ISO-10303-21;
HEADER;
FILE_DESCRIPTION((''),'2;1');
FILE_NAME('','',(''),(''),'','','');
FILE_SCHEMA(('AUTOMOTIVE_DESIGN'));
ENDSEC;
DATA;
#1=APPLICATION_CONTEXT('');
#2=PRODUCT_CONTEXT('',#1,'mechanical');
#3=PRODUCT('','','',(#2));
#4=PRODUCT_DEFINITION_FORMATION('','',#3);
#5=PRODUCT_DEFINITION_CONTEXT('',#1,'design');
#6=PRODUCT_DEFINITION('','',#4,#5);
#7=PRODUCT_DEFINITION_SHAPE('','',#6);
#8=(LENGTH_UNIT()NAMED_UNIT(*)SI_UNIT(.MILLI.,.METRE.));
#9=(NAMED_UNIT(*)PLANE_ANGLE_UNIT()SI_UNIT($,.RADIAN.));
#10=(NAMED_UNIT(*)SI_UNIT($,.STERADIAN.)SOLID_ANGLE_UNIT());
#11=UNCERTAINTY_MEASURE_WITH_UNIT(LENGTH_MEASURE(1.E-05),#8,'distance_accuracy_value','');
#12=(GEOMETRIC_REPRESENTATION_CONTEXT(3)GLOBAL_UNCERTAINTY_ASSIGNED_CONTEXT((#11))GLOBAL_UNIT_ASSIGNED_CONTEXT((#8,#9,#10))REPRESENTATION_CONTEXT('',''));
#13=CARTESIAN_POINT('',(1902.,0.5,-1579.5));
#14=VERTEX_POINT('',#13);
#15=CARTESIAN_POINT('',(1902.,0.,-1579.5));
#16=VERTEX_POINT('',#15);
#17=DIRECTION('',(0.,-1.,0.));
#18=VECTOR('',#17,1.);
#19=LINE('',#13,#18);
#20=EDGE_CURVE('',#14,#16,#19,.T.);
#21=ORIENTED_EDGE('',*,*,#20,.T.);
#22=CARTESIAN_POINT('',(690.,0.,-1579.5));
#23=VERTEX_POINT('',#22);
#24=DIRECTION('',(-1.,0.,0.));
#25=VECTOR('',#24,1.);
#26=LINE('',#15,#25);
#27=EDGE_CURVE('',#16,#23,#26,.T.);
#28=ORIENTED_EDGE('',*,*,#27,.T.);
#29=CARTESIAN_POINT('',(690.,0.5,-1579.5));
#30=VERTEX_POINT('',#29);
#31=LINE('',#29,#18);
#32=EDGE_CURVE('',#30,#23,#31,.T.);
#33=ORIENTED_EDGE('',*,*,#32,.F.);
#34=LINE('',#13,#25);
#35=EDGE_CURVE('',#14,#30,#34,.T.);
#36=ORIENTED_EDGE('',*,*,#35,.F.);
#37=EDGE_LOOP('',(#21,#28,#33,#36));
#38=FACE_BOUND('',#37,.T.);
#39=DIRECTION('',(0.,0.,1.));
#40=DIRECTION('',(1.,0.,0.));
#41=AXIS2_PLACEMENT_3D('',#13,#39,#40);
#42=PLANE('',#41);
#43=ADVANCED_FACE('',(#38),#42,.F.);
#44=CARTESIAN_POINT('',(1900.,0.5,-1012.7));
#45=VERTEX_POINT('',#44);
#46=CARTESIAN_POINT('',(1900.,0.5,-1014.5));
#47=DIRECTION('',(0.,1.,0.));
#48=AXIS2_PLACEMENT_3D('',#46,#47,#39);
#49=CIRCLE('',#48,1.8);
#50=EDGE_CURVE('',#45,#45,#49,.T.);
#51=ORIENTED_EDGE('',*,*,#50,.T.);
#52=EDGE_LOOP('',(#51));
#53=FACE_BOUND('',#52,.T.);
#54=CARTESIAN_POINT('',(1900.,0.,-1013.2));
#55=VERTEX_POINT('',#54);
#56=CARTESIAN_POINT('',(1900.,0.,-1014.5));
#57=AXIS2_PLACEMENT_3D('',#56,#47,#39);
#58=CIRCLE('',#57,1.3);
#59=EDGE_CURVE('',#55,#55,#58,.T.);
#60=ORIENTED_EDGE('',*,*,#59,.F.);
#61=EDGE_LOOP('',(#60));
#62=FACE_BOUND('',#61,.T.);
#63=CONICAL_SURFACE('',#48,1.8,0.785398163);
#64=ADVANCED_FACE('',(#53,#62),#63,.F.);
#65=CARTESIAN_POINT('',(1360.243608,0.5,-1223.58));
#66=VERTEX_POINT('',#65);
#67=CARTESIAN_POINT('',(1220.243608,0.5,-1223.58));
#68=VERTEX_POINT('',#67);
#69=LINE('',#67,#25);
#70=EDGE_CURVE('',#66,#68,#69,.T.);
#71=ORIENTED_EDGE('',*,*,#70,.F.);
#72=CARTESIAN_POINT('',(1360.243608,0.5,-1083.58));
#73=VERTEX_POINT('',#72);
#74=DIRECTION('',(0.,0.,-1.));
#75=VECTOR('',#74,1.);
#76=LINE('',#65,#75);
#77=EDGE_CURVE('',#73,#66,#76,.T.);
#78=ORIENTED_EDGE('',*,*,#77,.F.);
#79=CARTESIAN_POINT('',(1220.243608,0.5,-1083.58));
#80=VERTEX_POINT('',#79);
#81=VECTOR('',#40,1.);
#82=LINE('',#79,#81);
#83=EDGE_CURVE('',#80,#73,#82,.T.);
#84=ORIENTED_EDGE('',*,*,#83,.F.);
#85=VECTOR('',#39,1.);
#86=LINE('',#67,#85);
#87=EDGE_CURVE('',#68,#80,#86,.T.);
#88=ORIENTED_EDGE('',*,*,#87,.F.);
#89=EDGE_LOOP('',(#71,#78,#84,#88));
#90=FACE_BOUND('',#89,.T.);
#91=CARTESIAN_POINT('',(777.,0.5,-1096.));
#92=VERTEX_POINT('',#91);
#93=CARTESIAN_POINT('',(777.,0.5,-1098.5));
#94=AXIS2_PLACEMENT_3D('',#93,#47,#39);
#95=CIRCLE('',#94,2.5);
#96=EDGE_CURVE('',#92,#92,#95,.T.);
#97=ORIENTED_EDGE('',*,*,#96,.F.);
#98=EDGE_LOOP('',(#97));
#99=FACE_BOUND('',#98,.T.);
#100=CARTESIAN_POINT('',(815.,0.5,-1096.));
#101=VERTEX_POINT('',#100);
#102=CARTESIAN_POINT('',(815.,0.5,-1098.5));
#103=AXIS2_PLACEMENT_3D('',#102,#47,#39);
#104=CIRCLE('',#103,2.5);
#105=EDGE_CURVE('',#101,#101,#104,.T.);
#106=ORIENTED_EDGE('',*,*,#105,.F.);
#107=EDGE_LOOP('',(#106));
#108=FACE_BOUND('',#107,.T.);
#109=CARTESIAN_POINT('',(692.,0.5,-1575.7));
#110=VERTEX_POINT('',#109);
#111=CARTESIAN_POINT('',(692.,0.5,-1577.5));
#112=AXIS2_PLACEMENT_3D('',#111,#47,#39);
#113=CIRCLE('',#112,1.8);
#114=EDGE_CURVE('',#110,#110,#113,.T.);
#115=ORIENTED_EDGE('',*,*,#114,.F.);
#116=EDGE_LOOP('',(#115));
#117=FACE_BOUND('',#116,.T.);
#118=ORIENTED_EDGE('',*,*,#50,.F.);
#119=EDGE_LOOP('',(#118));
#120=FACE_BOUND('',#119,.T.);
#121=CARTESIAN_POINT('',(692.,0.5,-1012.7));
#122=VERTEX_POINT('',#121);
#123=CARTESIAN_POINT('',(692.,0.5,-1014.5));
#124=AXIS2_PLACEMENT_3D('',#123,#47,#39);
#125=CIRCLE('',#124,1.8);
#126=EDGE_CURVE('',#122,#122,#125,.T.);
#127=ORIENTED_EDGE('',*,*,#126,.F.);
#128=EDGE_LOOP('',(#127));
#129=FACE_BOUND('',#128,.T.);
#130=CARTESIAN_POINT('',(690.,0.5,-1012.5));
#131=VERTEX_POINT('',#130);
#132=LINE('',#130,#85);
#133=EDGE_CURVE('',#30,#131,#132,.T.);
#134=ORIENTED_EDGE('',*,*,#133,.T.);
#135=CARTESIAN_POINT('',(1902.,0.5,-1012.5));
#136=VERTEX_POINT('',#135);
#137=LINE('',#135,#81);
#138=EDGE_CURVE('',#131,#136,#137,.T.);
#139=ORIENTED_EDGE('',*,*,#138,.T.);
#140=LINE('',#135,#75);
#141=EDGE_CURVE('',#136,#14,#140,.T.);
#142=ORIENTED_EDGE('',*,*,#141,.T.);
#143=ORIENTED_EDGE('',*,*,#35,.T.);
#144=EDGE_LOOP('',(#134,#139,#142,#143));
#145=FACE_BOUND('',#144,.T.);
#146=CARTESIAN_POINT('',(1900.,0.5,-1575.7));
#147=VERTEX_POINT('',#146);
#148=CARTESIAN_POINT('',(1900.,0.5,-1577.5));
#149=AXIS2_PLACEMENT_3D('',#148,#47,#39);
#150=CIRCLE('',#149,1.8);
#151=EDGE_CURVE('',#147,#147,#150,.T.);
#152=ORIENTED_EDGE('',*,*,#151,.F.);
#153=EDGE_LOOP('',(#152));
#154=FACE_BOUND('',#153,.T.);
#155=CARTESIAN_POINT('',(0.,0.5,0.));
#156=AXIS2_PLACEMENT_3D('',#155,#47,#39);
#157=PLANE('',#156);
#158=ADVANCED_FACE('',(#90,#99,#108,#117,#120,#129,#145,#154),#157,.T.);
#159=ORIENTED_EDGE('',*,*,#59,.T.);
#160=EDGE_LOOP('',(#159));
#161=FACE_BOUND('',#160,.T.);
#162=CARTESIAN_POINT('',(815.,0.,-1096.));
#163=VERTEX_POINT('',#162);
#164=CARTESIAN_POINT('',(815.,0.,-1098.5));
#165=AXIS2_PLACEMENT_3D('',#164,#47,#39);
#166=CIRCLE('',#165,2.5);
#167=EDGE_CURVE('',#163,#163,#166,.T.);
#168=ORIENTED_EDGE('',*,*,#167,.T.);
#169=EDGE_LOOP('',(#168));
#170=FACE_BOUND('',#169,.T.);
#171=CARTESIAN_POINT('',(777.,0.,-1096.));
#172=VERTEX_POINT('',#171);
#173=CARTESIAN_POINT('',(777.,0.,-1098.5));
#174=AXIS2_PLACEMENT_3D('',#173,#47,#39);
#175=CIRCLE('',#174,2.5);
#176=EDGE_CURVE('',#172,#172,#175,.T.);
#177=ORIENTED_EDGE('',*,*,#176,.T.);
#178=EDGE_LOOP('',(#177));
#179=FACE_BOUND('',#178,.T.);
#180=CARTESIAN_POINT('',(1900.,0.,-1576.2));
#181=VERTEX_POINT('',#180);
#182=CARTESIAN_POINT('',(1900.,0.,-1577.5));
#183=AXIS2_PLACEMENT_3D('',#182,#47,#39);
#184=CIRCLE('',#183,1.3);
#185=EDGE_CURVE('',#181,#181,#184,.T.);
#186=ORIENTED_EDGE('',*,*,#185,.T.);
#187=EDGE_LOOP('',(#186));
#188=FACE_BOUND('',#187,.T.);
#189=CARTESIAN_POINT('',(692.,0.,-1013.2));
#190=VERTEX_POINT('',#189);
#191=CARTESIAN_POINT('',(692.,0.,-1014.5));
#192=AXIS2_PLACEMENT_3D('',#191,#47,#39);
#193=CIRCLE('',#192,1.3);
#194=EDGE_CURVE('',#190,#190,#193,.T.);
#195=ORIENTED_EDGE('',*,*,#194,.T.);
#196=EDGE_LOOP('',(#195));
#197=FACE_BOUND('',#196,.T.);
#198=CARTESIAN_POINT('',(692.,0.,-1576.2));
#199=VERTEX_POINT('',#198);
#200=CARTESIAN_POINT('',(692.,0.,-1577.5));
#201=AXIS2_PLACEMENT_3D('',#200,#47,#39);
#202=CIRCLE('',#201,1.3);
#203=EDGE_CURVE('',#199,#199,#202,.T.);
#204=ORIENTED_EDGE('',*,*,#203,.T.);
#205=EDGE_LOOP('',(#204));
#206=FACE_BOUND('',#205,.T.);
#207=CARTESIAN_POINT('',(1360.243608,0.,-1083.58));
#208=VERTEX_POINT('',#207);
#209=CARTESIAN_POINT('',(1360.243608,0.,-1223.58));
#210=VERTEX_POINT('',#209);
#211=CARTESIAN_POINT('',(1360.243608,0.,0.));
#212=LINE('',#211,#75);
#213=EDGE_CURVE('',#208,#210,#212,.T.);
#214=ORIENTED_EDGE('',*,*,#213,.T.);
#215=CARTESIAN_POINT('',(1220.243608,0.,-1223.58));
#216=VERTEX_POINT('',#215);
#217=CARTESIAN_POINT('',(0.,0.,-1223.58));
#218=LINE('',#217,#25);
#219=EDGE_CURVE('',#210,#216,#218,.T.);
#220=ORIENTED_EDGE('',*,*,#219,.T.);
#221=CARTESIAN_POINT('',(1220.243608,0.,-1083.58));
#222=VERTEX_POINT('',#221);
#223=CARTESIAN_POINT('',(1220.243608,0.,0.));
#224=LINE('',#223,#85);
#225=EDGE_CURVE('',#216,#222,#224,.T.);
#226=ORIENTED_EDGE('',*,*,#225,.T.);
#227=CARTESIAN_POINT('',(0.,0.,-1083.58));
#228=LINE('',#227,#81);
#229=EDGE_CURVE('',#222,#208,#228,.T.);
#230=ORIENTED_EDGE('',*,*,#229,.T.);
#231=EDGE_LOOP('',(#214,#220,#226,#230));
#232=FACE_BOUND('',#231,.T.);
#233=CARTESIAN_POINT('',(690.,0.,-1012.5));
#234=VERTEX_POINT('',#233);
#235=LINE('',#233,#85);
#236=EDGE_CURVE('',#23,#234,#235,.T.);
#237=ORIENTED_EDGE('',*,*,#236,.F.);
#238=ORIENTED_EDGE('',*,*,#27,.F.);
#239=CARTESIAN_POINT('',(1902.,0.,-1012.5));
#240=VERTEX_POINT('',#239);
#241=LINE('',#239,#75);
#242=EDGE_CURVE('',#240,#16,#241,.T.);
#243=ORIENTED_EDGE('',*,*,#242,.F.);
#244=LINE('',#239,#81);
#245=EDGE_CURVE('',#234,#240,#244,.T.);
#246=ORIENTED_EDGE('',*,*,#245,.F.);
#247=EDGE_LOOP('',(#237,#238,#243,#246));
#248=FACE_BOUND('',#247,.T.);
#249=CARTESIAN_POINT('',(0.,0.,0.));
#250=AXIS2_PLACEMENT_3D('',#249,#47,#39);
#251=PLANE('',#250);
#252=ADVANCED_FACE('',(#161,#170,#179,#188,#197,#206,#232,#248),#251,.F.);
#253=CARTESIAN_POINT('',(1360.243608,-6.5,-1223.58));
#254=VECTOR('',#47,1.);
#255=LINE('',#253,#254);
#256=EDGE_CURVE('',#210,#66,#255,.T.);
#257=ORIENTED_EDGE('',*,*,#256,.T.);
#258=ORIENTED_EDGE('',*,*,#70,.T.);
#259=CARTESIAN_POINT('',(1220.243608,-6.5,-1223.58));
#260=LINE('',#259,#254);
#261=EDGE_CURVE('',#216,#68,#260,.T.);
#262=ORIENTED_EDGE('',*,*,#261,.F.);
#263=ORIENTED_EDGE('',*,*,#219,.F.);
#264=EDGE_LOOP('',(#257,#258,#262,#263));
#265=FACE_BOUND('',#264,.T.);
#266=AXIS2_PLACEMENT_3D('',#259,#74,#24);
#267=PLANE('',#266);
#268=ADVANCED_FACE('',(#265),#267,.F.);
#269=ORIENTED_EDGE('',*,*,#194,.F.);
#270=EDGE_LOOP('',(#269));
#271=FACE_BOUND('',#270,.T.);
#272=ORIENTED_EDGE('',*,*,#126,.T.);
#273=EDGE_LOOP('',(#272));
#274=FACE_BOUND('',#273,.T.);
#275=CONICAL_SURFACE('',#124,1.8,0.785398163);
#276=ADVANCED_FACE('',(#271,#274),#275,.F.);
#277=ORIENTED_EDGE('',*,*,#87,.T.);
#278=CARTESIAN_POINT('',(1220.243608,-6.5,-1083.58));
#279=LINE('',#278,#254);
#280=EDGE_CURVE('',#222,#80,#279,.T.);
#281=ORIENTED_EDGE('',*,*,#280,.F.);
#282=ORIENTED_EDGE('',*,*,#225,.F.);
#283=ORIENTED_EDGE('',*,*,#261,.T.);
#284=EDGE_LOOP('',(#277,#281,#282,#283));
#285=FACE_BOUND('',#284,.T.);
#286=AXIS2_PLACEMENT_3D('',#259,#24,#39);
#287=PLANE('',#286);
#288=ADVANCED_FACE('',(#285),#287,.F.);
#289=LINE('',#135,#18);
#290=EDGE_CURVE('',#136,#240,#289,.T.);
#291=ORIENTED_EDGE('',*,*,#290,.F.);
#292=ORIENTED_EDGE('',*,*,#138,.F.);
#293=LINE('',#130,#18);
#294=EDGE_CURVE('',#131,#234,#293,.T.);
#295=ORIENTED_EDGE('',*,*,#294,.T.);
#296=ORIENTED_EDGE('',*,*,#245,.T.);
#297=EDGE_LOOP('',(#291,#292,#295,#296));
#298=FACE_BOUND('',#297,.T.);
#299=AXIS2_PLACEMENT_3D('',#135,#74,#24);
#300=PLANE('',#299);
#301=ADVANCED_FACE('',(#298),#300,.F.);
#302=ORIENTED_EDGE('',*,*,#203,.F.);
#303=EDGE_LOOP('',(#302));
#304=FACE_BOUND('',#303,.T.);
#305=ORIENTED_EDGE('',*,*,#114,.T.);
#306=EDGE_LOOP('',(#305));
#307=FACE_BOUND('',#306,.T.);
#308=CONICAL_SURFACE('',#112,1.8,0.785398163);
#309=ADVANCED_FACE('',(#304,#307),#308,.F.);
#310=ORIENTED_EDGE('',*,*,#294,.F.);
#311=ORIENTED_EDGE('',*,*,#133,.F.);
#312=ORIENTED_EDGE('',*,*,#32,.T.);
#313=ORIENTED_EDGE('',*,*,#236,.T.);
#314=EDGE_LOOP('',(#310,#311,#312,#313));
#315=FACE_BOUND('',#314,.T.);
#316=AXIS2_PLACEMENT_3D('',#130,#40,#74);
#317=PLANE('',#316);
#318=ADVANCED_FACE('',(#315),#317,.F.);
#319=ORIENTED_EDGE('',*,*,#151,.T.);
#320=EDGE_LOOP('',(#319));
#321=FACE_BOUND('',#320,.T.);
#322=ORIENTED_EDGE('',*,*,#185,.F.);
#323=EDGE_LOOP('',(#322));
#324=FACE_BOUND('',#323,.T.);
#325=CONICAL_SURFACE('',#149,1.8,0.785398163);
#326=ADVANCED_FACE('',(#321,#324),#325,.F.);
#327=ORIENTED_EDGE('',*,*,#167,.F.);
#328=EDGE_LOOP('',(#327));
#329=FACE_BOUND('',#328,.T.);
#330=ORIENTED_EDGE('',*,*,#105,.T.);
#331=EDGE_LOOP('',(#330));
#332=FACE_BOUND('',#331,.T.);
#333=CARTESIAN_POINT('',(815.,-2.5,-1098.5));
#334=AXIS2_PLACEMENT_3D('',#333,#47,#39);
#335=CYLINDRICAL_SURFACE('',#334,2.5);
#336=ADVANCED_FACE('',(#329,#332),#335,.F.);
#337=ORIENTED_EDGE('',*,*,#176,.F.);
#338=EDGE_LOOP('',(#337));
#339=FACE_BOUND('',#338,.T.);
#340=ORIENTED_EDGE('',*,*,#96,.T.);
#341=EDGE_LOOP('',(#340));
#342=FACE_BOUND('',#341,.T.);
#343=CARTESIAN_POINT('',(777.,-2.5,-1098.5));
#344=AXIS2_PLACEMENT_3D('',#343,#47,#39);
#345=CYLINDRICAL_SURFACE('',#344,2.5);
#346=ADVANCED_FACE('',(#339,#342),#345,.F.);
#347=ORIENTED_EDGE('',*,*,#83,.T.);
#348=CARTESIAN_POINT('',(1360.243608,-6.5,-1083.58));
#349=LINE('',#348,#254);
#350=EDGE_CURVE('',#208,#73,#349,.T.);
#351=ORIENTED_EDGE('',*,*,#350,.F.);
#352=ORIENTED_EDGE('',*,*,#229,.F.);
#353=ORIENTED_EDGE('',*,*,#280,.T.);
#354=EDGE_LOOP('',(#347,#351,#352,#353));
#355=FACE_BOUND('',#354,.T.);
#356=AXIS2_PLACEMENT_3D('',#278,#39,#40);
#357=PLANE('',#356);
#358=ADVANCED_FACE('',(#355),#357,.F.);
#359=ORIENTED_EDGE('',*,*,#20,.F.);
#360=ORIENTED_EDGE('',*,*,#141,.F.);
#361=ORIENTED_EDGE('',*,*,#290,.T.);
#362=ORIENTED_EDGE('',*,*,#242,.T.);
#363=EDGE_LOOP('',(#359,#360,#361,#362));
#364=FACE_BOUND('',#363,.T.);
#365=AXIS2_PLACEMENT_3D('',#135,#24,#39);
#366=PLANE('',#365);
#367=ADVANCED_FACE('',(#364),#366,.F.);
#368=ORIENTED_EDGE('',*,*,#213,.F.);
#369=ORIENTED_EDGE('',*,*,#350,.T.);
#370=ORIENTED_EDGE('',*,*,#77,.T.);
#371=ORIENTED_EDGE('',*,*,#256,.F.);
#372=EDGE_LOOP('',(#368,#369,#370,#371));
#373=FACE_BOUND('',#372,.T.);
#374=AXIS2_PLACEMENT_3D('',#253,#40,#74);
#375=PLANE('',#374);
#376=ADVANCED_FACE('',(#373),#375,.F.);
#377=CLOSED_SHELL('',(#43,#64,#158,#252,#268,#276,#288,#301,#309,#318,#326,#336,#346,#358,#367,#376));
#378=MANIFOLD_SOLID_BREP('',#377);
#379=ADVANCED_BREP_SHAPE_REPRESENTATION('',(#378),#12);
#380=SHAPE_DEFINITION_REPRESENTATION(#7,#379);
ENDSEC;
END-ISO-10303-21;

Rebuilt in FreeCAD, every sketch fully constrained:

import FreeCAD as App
import Part
import Sketcher
from FreeCAD import Vector
Q = App.Units.Quantity


def add_polygon(sketch, points):
    """Adds a closed chain of lines whose ends are joined by coincident constraints."""
    first, n = sketch.GeometryCount, len(points)
    for a, b in zip(points, points[1:] + points[:1]):
        sketch.addGeometry(Part.LineSegment(App.Vector(*a, 0), App.Vector(*b, 0)), False)
    for i in range(n):
        sketch.addConstraint(Sketcher.Constraint("Coincident", first + i, 2, first + (i + 1) % n, 1))

doc = App.newDocument("Part")
body = doc.addObject("PartDesign::Body", "Body")

# Sketch on XZ plane
sketch1 = doc.addObject("Sketcher::SketchObject", "Sketch")
body.addObject(sketch1)
sketch1.AttachmentSupport = (doc.XZ_Plane, [""])
sketch1.MapMode = "FlatFace"
add_polygon(sketch1, [(690, -1579.5), (690, -1012.5), (1902, -1012.5), (1902, -1579.5)])  # lines 0-3
sketch1.addConstraint([
    Sketcher.Constraint("Vertical", 0),
    Sketcher.Constraint("Horizontal", 1),
    Sketcher.Constraint("Vertical", 2),
    Sketcher.Constraint("Horizontal", 3),
    Sketcher.Constraint("DistanceX", 1, 1, 1, 2, Q("1212 mm")),
    Sketcher.Constraint("DistanceY", 0, 1, 0, 2, Q("567 mm")),
    Sketcher.Constraint("DistanceX", -1, 1, 0, 2, Q("690 mm")),
    Sketcher.Constraint("DistanceY", 0, 2, -1, 1, Q("1012.5 mm")),
])
pad1 = doc.addObject("PartDesign::Pad", "Pad")
body.addObject(pad1)
pad1.Profile = sketch1
pad1.Length = 0.5
pad1.Reversed = True

# Sketch on XZ plane
sketch2 = doc.addObject("Sketcher::SketchObject", "Sketch001")
body.addObject(sketch2)
sketch2.AttachmentSupport = (doc.XZ_Plane, [""])
sketch2.MapMode = "FlatFace"
sketch2.AttachmentOffset = App.Placement(Vector(0, 0, -0.5), App.Rotation())
sketch2.addGeometry([
    Part.Circle(Vector(1900, -1577.5, 0), Vector(0, 0, 1), 0.9),
    Part.Circle(Vector(692, -1577.5, 0), Vector(0, 0, 1), 0.9),
    Part.Circle(Vector(692, -1014.5, 0), Vector(0, 0, 1), 0.9),
    Part.Circle(Vector(1900, -1014.5, 0), Vector(0, 0, 1), 0.9),
], False)
sketch2.addConstraint([
    Sketcher.Constraint("Equal", 0, 1),
    Sketcher.Constraint("Equal", 1, 2),
    Sketcher.Constraint("Equal", 2, 3),
    Sketcher.Constraint("Horizontal", 0, 3, 1, 3),
    Sketcher.Constraint("Horizontal", 2, 3, 3, 3),
    Sketcher.Constraint("Vertical", 1, 3, 2, 3),
    Sketcher.Constraint("Vertical", 0, 3, 3, 3),
    Sketcher.Constraint("Diameter", 0, Q("1.8 mm")),
    Sketcher.Constraint("DistanceX", -1, 1, 0, 3, Q("1900 mm")),
    Sketcher.Constraint("DistanceX", -1, 1, 1, 3, Q("692 mm")),
    Sketcher.Constraint("DistanceY", 1, 3, 2, 3, Q("563 mm")),
    Sketcher.Constraint("DistanceY", 0, 3, -1, 1, Q("1577.5 mm")),
])
doc.recompute()
hole = doc.addObject("PartDesign::Hole", "Hole")
body.addObject(hole)
hole.Profile = sketch2
hole.ThreadType = "None"
hole.Diameter = 1.8
hole.DepthType = "Dimension"
hole.Depth = 30
hole.DrillPoint = "Angled"
hole.DrillPointAngle = 118
hole.HoleCutType = "Countersink"
hole.HoleCutDiameter = 3.6
hole.HoleCutCountersinkAngle = 90
hole.Reversed = True

# Sketch on XZ plane
sketch3 = doc.addObject("Sketcher::SketchObject", "Sketch002")
body.addObject(sketch3)
sketch3.AttachmentSupport = (doc.XZ_Plane, [""])
sketch3.MapMode = "FlatFace"
sketch3.AttachmentOffset = App.Placement(Vector(0, 0, -0.5), App.Rotation())
sketch3.addGeometry([
    Part.Circle(Vector(777, -1098.5, 0), Vector(0, 0, 1), 2.5),
    Part.Circle(Vector(815, -1098.5, 0), Vector(0, 0, 1), 2.5),
], False)
sketch3.addConstraint([
    Sketcher.Constraint("Equal", 0, 1),
    Sketcher.Constraint("Horizontal", 0, 3, 1, 3),
    Sketcher.Constraint("Diameter", 0, Q("5 mm")),
    Sketcher.Constraint("DistanceX", -1, 1, 0, 3, Q("777 mm")),
    Sketcher.Constraint("DistanceX", -1, 1, 1, 3, Q("815 mm")),
    Sketcher.Constraint("DistanceY", 0, 3, -1, 1, Q("1098.5 mm")),
])
pocket1 = doc.addObject("PartDesign::Pocket", "Pocket")
body.addObject(pocket1)
pocket1.Profile = sketch3
pocket1.Length = 3
pocket1.Reversed = True

# Sketch on XZ plane
sketch4 = doc.addObject("Sketcher::SketchObject", "Sketch003")
body.addObject(sketch4)
sketch4.AttachmentSupport = (doc.XZ_Plane, [""])
sketch4.MapMode = "FlatFace"
sketch4.AttachmentOffset = App.Placement(Vector(0, 0, -0.5), App.Rotation())
add_polygon(sketch4, [(1220.243608, -1223.58), (1220.243608, -1083.58), (1360.243608, -1083.58), (1360.243608, -1223.58)])  # lines 0-3
sketch4.addConstraint([
    Sketcher.Constraint("Vertical", 0),
    Sketcher.Constraint("Horizontal", 1),
    Sketcher.Constraint("Vertical", 2),
    Sketcher.Constraint("Horizontal", 3),
    Sketcher.Constraint("Equal", 3, 0),
    Sketcher.Constraint("DistanceX", 1, 1, 1, 2, Q("140 mm")),
    Sketcher.Constraint("DistanceY", 0, 2, -1, 1, Q("1083.58 mm")),
    Sketcher.Constraint("DistanceX", -1, 1, 0, 2, Q("1220.243608 mm")),
])
pocket2 = doc.addObject("PartDesign::Pocket", "Pocket001")
body.addObject(pocket2)
pocket2.Profile = sketch4
pocket2.Length = 7
pocket2.Reversed = True

doc.recompute()
